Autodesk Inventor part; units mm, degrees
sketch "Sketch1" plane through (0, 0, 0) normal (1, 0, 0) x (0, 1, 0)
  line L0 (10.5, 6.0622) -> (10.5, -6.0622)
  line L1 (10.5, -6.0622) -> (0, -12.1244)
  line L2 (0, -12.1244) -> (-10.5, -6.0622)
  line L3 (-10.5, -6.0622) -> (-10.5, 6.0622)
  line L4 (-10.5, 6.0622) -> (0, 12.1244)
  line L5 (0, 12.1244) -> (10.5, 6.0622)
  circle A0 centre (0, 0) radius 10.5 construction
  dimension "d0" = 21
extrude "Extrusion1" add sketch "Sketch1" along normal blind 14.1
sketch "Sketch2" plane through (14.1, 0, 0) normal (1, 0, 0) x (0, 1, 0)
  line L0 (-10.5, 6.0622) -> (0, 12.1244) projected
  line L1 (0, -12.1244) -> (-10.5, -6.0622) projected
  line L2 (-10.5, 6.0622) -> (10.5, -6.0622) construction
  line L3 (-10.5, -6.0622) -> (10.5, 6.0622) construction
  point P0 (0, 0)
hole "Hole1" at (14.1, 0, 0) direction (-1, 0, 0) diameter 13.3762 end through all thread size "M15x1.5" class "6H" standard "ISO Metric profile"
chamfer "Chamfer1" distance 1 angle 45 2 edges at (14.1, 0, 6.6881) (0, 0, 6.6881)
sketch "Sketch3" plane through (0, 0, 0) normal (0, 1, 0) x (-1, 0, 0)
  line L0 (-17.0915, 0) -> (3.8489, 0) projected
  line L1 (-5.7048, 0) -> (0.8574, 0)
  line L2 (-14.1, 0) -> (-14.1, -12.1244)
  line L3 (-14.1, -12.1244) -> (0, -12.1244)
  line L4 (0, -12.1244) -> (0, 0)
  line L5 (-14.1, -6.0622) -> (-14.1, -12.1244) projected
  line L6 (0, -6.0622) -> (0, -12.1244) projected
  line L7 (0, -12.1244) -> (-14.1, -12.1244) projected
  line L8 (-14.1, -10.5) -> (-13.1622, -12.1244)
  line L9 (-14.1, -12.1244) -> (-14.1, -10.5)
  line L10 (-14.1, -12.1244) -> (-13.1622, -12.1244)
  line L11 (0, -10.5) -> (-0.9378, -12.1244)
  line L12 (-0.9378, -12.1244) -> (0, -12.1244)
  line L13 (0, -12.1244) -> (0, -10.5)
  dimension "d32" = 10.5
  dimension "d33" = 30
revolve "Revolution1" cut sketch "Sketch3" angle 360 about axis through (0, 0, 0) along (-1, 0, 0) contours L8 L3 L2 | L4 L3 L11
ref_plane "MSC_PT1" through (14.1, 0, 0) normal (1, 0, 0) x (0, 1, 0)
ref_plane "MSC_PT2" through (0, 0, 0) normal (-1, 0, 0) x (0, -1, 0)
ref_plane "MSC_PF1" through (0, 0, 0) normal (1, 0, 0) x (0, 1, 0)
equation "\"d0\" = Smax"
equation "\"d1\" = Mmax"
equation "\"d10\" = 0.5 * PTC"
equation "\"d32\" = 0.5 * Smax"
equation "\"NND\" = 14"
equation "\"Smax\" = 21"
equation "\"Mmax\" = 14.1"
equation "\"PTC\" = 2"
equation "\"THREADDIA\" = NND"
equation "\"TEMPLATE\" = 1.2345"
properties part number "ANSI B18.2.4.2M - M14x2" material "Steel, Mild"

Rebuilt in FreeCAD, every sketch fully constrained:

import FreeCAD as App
import Part
import Sketcher
from FreeCAD import Vector
Q = App.Units.Quantity


def edges_at(feature, points):
    """Names of the edges that pass closest to the given points."""
    edges = feature.Shape.Edges
    near = lambda p: min(range(len(edges)), key=lambda i: edges[i].distToShape(Part.Vertex(*p))[0])
    return sorted({f"Edge{near(p) + 1}" for p in points})


def add_polygon(sketch, points):
    """Adds a closed chain of lines whose ends are joined by coincident constraints."""
    first, n = sketch.GeometryCount, len(points)
    for a, b in zip(points, points[1:] + points[:1]):
        sketch.addGeometry(Part.LineSegment(App.Vector(*a, 0), App.Vector(*b, 0)), False)
    for i in range(n):
        sketch.addConstraint(Sketcher.Constraint("Coincident", first + i, 2, first + (i + 1) % n, 1))

doc = App.newDocument("Part")
body = doc.addObject("PartDesign::Body", "Body")

# Sketch on YZ plane
sketch1 = body.newObject("Sketcher::SketchObject", "Sketch")
sketch1.AttachmentSupport = (doc.getObject("YZ_Plane"), [""])
sketch1.MapMode = "FlatFace"
add_polygon(sketch1, [(10, -6), (10, 6), (0, 12), (-10, 6), (-10, -6), (0, -12)])  # lines 0-5
sketch1.addConstraint(Sketcher.Constraint("Vertical", 0))
sketch1.addConstraint(Sketcher.Constraint("Vertical", 3))
sketch1.addConstraint(Sketcher.Constraint("Symmetric", 0, 2, 3, 2, -1, 1))
sketch1.addConstraint(Sketcher.Constraint("Symmetric", 1, 2, 4, 2, -1, 1))
sketch1.addConstraint(Sketcher.Constraint("PointOnObject", 1, 2, -2))
sketch1.addConstraint(Sketcher.Constraint("Parallel", 2, 5))
sketch1.addConstraint(Sketcher.Constraint("Horizontal", 0, 2, 2, 2))
sketch1.addConstraint(Sketcher.Constraint("DistanceX", 2, 2, 0, 2, 21.0))
sketch1.addConstraint(Sketcher.Constraint("Angle", 1, Q("150 deg")))
sketch1.addConstraint(Sketcher.Constraint("DistanceY", 0, 1, 0, 2, 12.1244))
pad1 = body.newObject("PartDesign::Pad", "Pad")
pad1.Profile = sketch1
pad1.Length = 14.1

# Sketch on YZ plane
sketch2 = body.newObject("Sketcher::SketchObject", "Sketch001")
sketch2.AttachmentSupport = (doc.getObject("YZ_Plane"), [""])
sketch2.MapMode = "FlatFace"
sketch2.AttachmentOffset = App.Placement(Vector(0, 0, 14.1), App.Rotation())
sketch2.addGeometry(Part.Circle(Vector(0, 0, 0), Vector(0, 0, 1), 7), False)
sketch2.addConstraint(Sketcher.Constraint("Coincident", 0, 3, -1, 1))
sketch2.addConstraint(Sketcher.Constraint("Diameter", 0, 13.3762))
doc.recompute()
hole = body.newObject("PartDesign::Hole", "Hole")
hole.Profile = sketch2
hole.ThreadType = "None"
hole.Diameter = 13.3762
hole.DepthType = "ThroughAll"
doc.recompute()

chamfer = body.newObject("PartDesign::Chamfer", "Chamfer")
chamfer.Base = (hole, edges_at(hole, [(14.1, 0, 6.688), (0, 0, 6.688)]))
chamfer.Size = 1

# Sketch on XZ plane
sketch3 = body.newObject("Sketcher::SketchObject", "Sketch002")
sketch3.AttachmentSupport = (doc.getObject("XZ_Plane"), [""])
sketch3.MapMode = "FlatFace"
add_polygon(sketch3, [(13.2, -12.1), (14.1, -10.5), (14.1, -12.1)])  # lines 0-2
add_polygon(sketch3, [(0, -12.1), (0, -10.5), (0.9, -12.1)])  # lines 3-5
sketch3.addConstraint(Sketcher.Constraint("Vertical", 1))
sketch3.addConstraint(Sketcher.Constraint("Horizontal", 2))
sketch3.addConstraint(Sketcher.Constraint("Vertical", 3))
sketch3.addConstraint(Sketcher.Constraint("Horizontal", 5))
sketch3.addConstraint(Sketcher.Constraint("PointOnObject", 3, 2, -2))
sketch3.addConstraint(Sketcher.Constraint("Horizontal", 0, 2, 3, 2))
sketch3.addConstraint(Sketcher.Constraint("Horizontal", 2, 2, 4, 2))
sketch3.addConstraint(Sketcher.Constraint("Equal", 2, 5))
sketch3.addConstraint(Sketcher.Constraint("DistanceY", 0, 2, -1, 1, 10.5))
sketch3.addConstraint(Sketcher.Constraint("DistanceX", -1, 1, 0, 2, 14.1))
sketch3.addConstraint(Sketcher.Constraint("DistanceX", 2, 2, 2, 1, 0.9378))
sketch3.addConstraint(Sketcher.Constraint("DistanceY", 1, 2, 1, 1, 1.6244))
groove = body.newObject("PartDesign::Groove", "Groove")
groove.Profile = sketch3
groove.ReferenceAxis = (sketch3, ["H_Axis"])
groove.Angle = 360

doc.recompute()
